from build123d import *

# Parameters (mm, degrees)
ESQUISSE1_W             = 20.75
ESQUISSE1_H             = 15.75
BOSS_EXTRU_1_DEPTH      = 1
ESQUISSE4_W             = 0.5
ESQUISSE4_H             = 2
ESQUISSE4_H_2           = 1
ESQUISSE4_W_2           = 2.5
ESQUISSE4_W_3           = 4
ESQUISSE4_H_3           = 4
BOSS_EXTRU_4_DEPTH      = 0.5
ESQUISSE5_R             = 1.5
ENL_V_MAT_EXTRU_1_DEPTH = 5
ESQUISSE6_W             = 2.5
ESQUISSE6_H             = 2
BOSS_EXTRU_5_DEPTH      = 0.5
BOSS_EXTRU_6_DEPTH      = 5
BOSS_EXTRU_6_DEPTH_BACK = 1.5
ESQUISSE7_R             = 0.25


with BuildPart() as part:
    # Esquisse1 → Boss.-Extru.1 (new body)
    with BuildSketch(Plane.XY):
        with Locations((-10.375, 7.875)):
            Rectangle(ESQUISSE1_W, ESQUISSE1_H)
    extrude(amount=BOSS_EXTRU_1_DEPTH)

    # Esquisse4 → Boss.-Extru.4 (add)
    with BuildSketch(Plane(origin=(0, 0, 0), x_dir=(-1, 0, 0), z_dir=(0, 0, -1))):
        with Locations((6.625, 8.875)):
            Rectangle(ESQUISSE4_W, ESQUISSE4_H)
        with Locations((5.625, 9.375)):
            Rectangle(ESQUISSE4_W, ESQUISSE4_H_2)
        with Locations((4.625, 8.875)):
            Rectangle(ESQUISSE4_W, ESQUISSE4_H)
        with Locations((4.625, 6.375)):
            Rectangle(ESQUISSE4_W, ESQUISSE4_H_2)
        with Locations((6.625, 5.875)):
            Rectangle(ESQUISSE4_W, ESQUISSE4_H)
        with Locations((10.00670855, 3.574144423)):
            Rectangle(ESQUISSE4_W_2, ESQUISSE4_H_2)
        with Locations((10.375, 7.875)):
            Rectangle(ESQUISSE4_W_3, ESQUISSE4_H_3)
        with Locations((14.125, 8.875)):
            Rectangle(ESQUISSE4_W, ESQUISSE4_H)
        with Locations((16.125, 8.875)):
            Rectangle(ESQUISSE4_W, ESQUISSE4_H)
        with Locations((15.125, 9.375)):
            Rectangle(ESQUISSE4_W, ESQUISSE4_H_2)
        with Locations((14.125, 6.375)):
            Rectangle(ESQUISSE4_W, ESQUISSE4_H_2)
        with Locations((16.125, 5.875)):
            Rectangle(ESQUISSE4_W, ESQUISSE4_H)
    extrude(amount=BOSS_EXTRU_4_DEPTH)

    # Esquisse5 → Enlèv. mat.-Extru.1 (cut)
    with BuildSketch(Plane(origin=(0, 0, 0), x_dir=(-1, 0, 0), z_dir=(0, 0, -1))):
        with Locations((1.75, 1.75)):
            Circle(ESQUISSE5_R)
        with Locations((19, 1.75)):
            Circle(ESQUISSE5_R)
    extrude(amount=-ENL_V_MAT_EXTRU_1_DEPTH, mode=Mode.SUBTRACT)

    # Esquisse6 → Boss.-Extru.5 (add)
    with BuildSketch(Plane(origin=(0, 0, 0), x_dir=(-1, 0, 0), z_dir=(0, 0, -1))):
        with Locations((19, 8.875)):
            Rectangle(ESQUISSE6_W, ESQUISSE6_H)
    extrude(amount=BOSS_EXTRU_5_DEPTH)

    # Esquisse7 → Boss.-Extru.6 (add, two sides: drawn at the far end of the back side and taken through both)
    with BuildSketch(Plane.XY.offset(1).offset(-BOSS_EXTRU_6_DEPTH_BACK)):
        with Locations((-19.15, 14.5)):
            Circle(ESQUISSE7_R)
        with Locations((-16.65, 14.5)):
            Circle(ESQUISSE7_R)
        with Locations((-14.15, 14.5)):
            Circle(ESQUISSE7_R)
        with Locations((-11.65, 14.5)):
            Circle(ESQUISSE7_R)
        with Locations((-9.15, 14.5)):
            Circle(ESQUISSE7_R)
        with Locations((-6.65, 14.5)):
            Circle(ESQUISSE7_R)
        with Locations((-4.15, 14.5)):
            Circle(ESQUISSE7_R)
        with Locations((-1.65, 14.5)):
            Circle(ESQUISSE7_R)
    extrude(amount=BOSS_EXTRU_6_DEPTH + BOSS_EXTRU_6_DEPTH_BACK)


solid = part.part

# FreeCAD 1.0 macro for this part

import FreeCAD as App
import Part
import Sketcher


def add_polygon(sketch, points):
    """Adds a closed chain of lines whose ends are joined by coincident constraints."""
    first, n = sketch.GeometryCount, len(points)
    for a, b in zip(points, points[1:] + points[:1]):
        sketch.addGeometry(Part.LineSegment(App.Vector(*a, 0), App.Vector(*b, 0)), False)
    for i in range(n):
        sketch.addConstraint(Sketcher.Constraint("Coincident", first + i, 2, first + (i + 1) % n, 1))

doc = App.newDocument("Part")
body = doc.addObject("PartDesign::Body", "Body")

# Sketch on XY plane
sketch1 = body.newObject("Sketcher::SketchObject", "Sketch")
sketch1.AttachmentSupport = (doc.getObject("XY_Plane"), [""])
sketch1.MapMode = "FlatFace"
add_polygon(sketch1, [(-21, 16), (-21, 0), (0, 0), (0, 16)])  # lines 0-3
sketch1.addConstraint([
    Sketcher.Constraint("Vertical", 0),
    Sketcher.Constraint("Horizontal", 1),
    Sketcher.Constraint("Vertical", 2),
    Sketcher.Constraint("Horizontal", 3),
    Sketcher.Constraint("Coincident", 1, 2, -1, 1),
    Sketcher.Constraint("DistanceX", 1, 1, 1, 2, 20.75),
    Sketcher.Constraint("DistanceY", 0, 2, 0, 1, 15.75),
])
pad1 = body.newObject("PartDesign::Pad", "Pad")
pad1.Profile = sketch1
pad1.Length = 1

# Sketch on XY plane
sketch2 = body.newObject("Sketcher::SketchObject", "Sketch001")
sketch2.AttachmentSupport = (doc.getObject("XY_Plane"), [""])
sketch2.MapMode = "FlatFace"
add_polygon(sketch2, [(-6.4, 9.9), (-6.4, 7.9), (-6.9, 7.9), (-6.9, 9.9)])  # lines 0-3
add_polygon(sketch2, [(-5.4, 9.9), (-5.4, 8.9), (-5.9, 8.9), (-5.9, 9.9)])  # lines 4-7
add_polygon(sketch2, [(-4.4, 9.9), (-4.4, 7.9), (-4.9, 7.9), (-4.9, 9.9)])  # lines 8-11
add_polygon(sketch2, [(-4.4, 6.9), (-4.4, 5.9), (-4.9, 5.9), (-4.9, 6.9)])  # lines 12-15
add_polygon(sketch2, [(-6.4, 6.9), (-6.4, 4.9), (-6.9, 4.9), (-6.9, 6.9)])  # lines 16-19
add_polygon(sketch2, [(-8.8, 4.1), (-8.8, 3.1), (-11.3, 3.1), (-11.3, 4.1)])  # lines 20-23
add_polygon(sketch2, [(-8.4, 9.9), (-8.4, 5.9), (-12.4, 5.9), (-12.4, 9.9)])  # lines 24-27
add_polygon(sketch2, [(-13.9, 9.9), (-13.9, 7.9), (-14.4, 7.9), (-14.4, 9.9)])  # lines 28-31
add_polygon(sketch2, [(-15.9, 9.9), (-15.9, 7.9), (-16.4, 7.9), (-16.4, 9.9)])  # lines 32-35
add_polygon(sketch2, [(-14.9, 9.9), (-14.9, 8.9), (-15.4, 8.9), (-15.4, 9.9)])  # lines 36-39
add_polygon(sketch2, [(-13.9, 6.9), (-13.9, 5.9), (-14.4, 5.9), (-14.4, 6.9)])  # lines 40-43
add_polygon(sketch2, [(-15.9, 6.9), (-15.9, 4.9), (-16.4, 4.9), (-16.4, 6.9)])  # lines 44-47
sketch2.addConstraint([
    Sketcher.Constraint("Vertical", 0),
    Sketcher.Constraint("Horizontal", 1),
    Sketcher.Constraint("Vertical", 2),
    Sketcher.Constraint("Horizontal", 3),
    Sketcher.Constraint("Vertical", 4),
    Sketcher.Constraint("Horizontal", 5),
    Sketcher.Constraint("Vertical", 6),
    Sketcher.Constraint("Horizontal", 7),
    Sketcher.Constraint("Vertical", 8),
    Sketcher.Constraint("Horizontal", 9),
    Sketcher.Constraint("Vertical", 10),
    Sketcher.Constraint("Horizontal", 11),
    Sketcher.Constraint("Vertical", 12),
    Sketcher.Constraint("Horizontal", 13),
    Sketcher.Constraint("Vertical", 14),
    Sketcher.Constraint("Horizontal", 15),
    Sketcher.Constraint("Vertical", 16),
    Sketcher.Constraint("Horizontal", 17),
    Sketcher.Constraint("Vertical", 18),
    Sketcher.Constraint("Horizontal", 19),
    Sketcher.Constraint("Vertical", 20),
    Sketcher.Constraint("Horizontal", 21),
    Sketcher.Constraint("Vertical", 22),
    Sketcher.Constraint("Horizontal", 23),
    Sketcher.Constraint("Vertical", 24),
    Sketcher.Constraint("Horizontal", 25),
    Sketcher.Constraint("Vertical", 26),
    Sketcher.Constraint("Horizontal", 27),
    Sketcher.Constraint("Vertical", 28),
    Sketcher.Constraint("Horizontal", 29),
    Sketcher.Constraint("Vertical", 30),
    Sketcher.Constraint("Horizontal", 31),
    Sketcher.Constraint("Vertical", 32),
    Sketcher.Constraint("Horizontal", 33),
    Sketcher.Constraint("Vertical", 34),
    Sketcher.Constraint("Horizontal", 35),
    Sketcher.Constraint("Vertical", 36),
    Sketcher.Constraint("Horizontal", 37),
    Sketcher.Constraint("Vertical", 38),
    Sketcher.Constraint("Horizontal", 39),
    Sketcher.Constraint("Vertical", 40),
    Sketcher.Constraint("Horizontal", 41),
    Sketcher.Constraint("Vertical", 42),
    Sketcher.Constraint("Horizontal", 43),
    Sketcher.Constraint("Vertical", 44),
    Sketcher.Constraint("Horizontal", 45),
    Sketcher.Constraint("Vertical", 46),
    Sketcher.Constraint("Horizontal", 47),
    Sketcher.Constraint("Horizontal", 3, 2, 6, 2),
    Sketcher.Constraint("Horizontal", 1, 2, 8, 2),
    Sketcher.Constraint("Horizontal", 7, 2, 10, 2),
    Sketcher.Constraint("Horizontal", 15, 2, 18, 2),
    Sketcher.Constraint("Horizontal", 13, 2, 24, 2),
    Sketcher.Constraint("Horizontal", 11, 2, 26, 2),
    Sketcher.Constraint("Horizontal", 9, 2, 28, 2),
    Sketcher.Constraint("Horizontal", 27, 2, 30, 2),
    Sketcher.Constraint("Horizontal", 29, 2, 32, 2),
    Sketcher.Constraint("Horizontal", 31, 2, 34, 2),
    Sketcher.Constraint("Horizontal", 5, 2, 36, 2),
    Sketcher.Constraint("Horizontal", 35, 2, 38, 2),
    Sketcher.Constraint("Horizontal", 25, 2, 40, 2),
    Sketcher.Constraint("Horizontal", 19, 2, 42, 2),
    Sketcher.Constraint("Horizontal", 17, 2, 44, 2),
    Sketcher.Constraint("Horizontal", 43, 2, 46, 2),
    Sketcher.Constraint("Vertical", 11, 2, 12, 2),
    Sketcher.Constraint("Vertical", 10, 2, 13, 2),
    Sketcher.Constraint("Vertical", 3, 2, 16, 2),
    Sketcher.Constraint("Vertical", 2, 2, 17, 2),
    Sketcher.Constraint("Vertical", 31, 2, 40, 2),
    Sketcher.Constraint("Vertical", 30, 2, 41, 2),
    Sketcher.Constraint("Vertical", 35, 2, 44, 2),
    Sketcher.Constraint("Vertical", 34, 2, 45, 2),
    Sketcher.Constraint("Equal", 3, 5),
    Sketcher.Constraint("Equal", 7, 9),
    Sketcher.Constraint("Equal", 19, 29),
    Sketcher.Constraint("Equal", 31, 33),
    Sketcher.Constraint("Equal", 35, 37),
    Sketcher.Constraint("Equal", 6, 12),
    Sketcher.Constraint("Equal", 10, 16),
    Sketcher.Constraint("Equal", 14, 20),
    Sketcher.Constraint("Equal", 27, 24),
    Sketcher.Constraint("DistanceX", 25, 2, 25, 1, 4.0),
    Sketcher.Constraint("DistanceY", 0, 2, 0, 1, 2.0),
    Sketcher.Constraint("DistanceY", 4, 2, 4, 1, 1.0),
    Sketcher.Constraint("DistanceX", 1, 2, 1, 1, 0.5),
    Sketcher.Constraint("DistanceX", 21, 2, 21, 1, 2.5),
    Sketcher.Constraint("DistanceX", 0, 2, 4, 2, 1.0),
    Sketcher.Constraint("DistanceX", 4, 2, 8, 2, 1.0),
    Sketcher.Constraint("DistanceX", 24, 2, 16, 2, 2.0),
    Sketcher.Constraint("DistanceX", 29, 2, 25, 2, 2.0),
    Sketcher.Constraint("DistanceX", 32, 2, 28, 2, 2.0),
    Sketcher.Constraint("DistanceX", 36, 2, 28, 2, 1.0),
    Sketcher.Constraint("DistanceX", 0, 2, -1, 1, 6.375),
    Sketcher.Constraint("DistanceY", -1, 1, 0, 2, 7.875),
    Sketcher.Constraint("DistanceX", 20, 2, -1, 1, 8.756709),
    Sketcher.Constraint("DistanceY", -1, 1, 20, 2, 3.074144),
])
pad2 = body.newObject("PartDesign::Pad", "Pad001")
pad2.Profile = sketch2
pad2.Length = 0.5
pad2.Reversed = True

# Sketch on XY plane
sketch3 = body.newObject("Sketcher::SketchObject", "Sketch002")
sketch3.AttachmentSupport = (doc.getObject("XY_Plane"), [""])
sketch3.MapMode = "FlatFace"
sketch3.addGeometry([
    Part.Circle(App.Vector(-1.8, 1.8, 0), App.Vector(0, 0, 1), 1.5),
    Part.Circle(App.Vector(-19, 1.8, 0), App.Vector(0, 0, 1), 1.5),
], False)
sketch3.addConstraint([
    Sketcher.Constraint("Equal", 0, 1),
    Sketcher.Constraint("Horizontal", 0, 3, 1, 3),
    Sketcher.Constraint("Diameter", 0, 3.0),
    Sketcher.Constraint("DistanceX", 1, 3, -1, 1, 19.0),
    Sketcher.Constraint("DistanceX", 0, 3, -1, 1, 1.75),
    Sketcher.Constraint("DistanceY", -1, 1, 0, 3, 1.75),
])
pocket1 = body.newObject("PartDesign::Pocket", "Pocket")
pocket1.Profile = sketch3
pocket1.Length = 5
pocket1.Reversed = True

# Sketch on XY plane
sketch4 = body.newObject("Sketcher::SketchObject", "Sketch003")
sketch4.AttachmentSupport = (doc.getObject("XY_Plane"), [""])
sketch4.MapMode = "FlatFace"
add_polygon(sketch4, [(-17.8, 9.9), (-17.8, 7.9), (-20.2, 7.9), (-20.2, 9.9)])  # lines 0-3
sketch4.addConstraint([
    Sketcher.Constraint("Vertical", 0),
    Sketcher.Constraint("Horizontal", 1),
    Sketcher.Constraint("Vertical", 2),
    Sketcher.Constraint("Horizontal", 3),
    Sketcher.Constraint("DistanceY", 0, 2, 0, 1, 2.0),
    Sketcher.Constraint("DistanceX", 1, 2, 1, 1, 2.5),
    Sketcher.Constraint("DistanceX", 0, 2, -1, 1, 17.75),
    Sketcher.Constraint("DistanceY", -1, 1, 0, 2, 7.875),
])
pad3 = body.newObject("PartDesign::Pad", "Pad002")
pad3.Profile = sketch4
pad3.Length = 0.5
pad3.Reversed = True

# Sketch on XY plane
sketch5 = body.newObject("Sketcher::SketchObject", "Sketch004")
sketch5.AttachmentSupport = (doc.getObject("XY_Plane"), [""])
sketch5.MapMode = "FlatFace"
sketch5.AttachmentOffset = App.Placement(App.Vector(0, 0, 1), App.Rotation())
sketch5.addGeometry([
    Part.Circle(App.Vector(-19.15, 14.5, 0), App.Vector(0, 0, 1), 0.25),  # 0
    Part.Circle(App.Vector(-16.65, 14.5, 0), App.Vector(0, 0, 1), 0.25),  # 1
    Part.Circle(App.Vector(-14.15, 14.5, 0), App.Vector(0, 0, 1), 0.25),  # 2
    Part.Circle(App.Vector(-11.65, 14.5, 0), App.Vector(0, 0, 1), 0.25),  # 3
    Part.Circle(App.Vector(-9.15, 14.5, 0), App.Vector(0, 0, 1), 0.25),  # 4
    Part.Circle(App.Vector(-6.65, 14.5, 0), App.Vector(0, 0, 1), 0.25),  # 5
    Part.Circle(App.Vector(-4.15, 14.5, 0), App.Vector(0, 0, 1), 0.25),  # 6
    Part.Circle(App.Vector(-1.65, 14.5, 0), App.Vector(0, 0, 1), 0.25),  # 7
], False)
sketch5.addConstraint([
    Sketcher.Constraint("Equal", 0, 1),
    Sketcher.Constraint("Equal", 1, 2),
    Sketcher.Constraint("Equal", 2, 3),
    Sketcher.Constraint("Equal", 3, 4),
    Sketcher.Constraint("Equal", 4, 5),
    Sketcher.Constraint("Equal", 5, 6),
    Sketcher.Constraint("Equal", 6, 7),
    Sketcher.Constraint("Horizontal", 0, 3, 1, 3),
    Sketcher.Constraint("Horizontal", 1, 3, 2, 3),
    Sketcher.Constraint("Horizontal", 2, 3, 3, 3),
    Sketcher.Constraint("Horizontal", 3, 3, 4, 3),
    Sketcher.Constraint("Horizontal", 4, 3, 5, 3),
    Sketcher.Constraint("Horizontal", 5, 3, 6, 3),
    Sketcher.Constraint("Horizontal", 6, 3, 7, 3),
    Sketcher.Constraint("Diameter", 0, 0.5),
    Sketcher.Constraint("DistanceX", 0, 3, 2, 3, 5.0),
    Sketcher.Constraint("DistanceX", 1, 3, 3, 3, 5.0),
    Sketcher.Constraint("DistanceX", 2, 3, 4, 3, 5.0),
    Sketcher.Constraint("DistanceX", 3, 3, 5, 3, 5.0),
    Sketcher.Constraint("DistanceX", 4, 3, 6, 3, 5.0),
    Sketcher.Constraint("DistanceX", 5, 3, 7, 3, 5.0),
    Sketcher.Constraint("DistanceY", -1, 1, 0, 3, 14.5),
    Sketcher.Constraint("DistanceX", 0, 3, 1, 3, 2.5),
    Sketcher.Constraint("DistanceX", 0, 3, -1, 1, 19.15),
])
pad4 = body.newObject("PartDesign::Pad", "Pad003")
pad4.Profile = sketch5
pad4.Type = "TwoLengths"
pad4.Length = 5
pad4.Length2 = 1.5

doc.recompute()
